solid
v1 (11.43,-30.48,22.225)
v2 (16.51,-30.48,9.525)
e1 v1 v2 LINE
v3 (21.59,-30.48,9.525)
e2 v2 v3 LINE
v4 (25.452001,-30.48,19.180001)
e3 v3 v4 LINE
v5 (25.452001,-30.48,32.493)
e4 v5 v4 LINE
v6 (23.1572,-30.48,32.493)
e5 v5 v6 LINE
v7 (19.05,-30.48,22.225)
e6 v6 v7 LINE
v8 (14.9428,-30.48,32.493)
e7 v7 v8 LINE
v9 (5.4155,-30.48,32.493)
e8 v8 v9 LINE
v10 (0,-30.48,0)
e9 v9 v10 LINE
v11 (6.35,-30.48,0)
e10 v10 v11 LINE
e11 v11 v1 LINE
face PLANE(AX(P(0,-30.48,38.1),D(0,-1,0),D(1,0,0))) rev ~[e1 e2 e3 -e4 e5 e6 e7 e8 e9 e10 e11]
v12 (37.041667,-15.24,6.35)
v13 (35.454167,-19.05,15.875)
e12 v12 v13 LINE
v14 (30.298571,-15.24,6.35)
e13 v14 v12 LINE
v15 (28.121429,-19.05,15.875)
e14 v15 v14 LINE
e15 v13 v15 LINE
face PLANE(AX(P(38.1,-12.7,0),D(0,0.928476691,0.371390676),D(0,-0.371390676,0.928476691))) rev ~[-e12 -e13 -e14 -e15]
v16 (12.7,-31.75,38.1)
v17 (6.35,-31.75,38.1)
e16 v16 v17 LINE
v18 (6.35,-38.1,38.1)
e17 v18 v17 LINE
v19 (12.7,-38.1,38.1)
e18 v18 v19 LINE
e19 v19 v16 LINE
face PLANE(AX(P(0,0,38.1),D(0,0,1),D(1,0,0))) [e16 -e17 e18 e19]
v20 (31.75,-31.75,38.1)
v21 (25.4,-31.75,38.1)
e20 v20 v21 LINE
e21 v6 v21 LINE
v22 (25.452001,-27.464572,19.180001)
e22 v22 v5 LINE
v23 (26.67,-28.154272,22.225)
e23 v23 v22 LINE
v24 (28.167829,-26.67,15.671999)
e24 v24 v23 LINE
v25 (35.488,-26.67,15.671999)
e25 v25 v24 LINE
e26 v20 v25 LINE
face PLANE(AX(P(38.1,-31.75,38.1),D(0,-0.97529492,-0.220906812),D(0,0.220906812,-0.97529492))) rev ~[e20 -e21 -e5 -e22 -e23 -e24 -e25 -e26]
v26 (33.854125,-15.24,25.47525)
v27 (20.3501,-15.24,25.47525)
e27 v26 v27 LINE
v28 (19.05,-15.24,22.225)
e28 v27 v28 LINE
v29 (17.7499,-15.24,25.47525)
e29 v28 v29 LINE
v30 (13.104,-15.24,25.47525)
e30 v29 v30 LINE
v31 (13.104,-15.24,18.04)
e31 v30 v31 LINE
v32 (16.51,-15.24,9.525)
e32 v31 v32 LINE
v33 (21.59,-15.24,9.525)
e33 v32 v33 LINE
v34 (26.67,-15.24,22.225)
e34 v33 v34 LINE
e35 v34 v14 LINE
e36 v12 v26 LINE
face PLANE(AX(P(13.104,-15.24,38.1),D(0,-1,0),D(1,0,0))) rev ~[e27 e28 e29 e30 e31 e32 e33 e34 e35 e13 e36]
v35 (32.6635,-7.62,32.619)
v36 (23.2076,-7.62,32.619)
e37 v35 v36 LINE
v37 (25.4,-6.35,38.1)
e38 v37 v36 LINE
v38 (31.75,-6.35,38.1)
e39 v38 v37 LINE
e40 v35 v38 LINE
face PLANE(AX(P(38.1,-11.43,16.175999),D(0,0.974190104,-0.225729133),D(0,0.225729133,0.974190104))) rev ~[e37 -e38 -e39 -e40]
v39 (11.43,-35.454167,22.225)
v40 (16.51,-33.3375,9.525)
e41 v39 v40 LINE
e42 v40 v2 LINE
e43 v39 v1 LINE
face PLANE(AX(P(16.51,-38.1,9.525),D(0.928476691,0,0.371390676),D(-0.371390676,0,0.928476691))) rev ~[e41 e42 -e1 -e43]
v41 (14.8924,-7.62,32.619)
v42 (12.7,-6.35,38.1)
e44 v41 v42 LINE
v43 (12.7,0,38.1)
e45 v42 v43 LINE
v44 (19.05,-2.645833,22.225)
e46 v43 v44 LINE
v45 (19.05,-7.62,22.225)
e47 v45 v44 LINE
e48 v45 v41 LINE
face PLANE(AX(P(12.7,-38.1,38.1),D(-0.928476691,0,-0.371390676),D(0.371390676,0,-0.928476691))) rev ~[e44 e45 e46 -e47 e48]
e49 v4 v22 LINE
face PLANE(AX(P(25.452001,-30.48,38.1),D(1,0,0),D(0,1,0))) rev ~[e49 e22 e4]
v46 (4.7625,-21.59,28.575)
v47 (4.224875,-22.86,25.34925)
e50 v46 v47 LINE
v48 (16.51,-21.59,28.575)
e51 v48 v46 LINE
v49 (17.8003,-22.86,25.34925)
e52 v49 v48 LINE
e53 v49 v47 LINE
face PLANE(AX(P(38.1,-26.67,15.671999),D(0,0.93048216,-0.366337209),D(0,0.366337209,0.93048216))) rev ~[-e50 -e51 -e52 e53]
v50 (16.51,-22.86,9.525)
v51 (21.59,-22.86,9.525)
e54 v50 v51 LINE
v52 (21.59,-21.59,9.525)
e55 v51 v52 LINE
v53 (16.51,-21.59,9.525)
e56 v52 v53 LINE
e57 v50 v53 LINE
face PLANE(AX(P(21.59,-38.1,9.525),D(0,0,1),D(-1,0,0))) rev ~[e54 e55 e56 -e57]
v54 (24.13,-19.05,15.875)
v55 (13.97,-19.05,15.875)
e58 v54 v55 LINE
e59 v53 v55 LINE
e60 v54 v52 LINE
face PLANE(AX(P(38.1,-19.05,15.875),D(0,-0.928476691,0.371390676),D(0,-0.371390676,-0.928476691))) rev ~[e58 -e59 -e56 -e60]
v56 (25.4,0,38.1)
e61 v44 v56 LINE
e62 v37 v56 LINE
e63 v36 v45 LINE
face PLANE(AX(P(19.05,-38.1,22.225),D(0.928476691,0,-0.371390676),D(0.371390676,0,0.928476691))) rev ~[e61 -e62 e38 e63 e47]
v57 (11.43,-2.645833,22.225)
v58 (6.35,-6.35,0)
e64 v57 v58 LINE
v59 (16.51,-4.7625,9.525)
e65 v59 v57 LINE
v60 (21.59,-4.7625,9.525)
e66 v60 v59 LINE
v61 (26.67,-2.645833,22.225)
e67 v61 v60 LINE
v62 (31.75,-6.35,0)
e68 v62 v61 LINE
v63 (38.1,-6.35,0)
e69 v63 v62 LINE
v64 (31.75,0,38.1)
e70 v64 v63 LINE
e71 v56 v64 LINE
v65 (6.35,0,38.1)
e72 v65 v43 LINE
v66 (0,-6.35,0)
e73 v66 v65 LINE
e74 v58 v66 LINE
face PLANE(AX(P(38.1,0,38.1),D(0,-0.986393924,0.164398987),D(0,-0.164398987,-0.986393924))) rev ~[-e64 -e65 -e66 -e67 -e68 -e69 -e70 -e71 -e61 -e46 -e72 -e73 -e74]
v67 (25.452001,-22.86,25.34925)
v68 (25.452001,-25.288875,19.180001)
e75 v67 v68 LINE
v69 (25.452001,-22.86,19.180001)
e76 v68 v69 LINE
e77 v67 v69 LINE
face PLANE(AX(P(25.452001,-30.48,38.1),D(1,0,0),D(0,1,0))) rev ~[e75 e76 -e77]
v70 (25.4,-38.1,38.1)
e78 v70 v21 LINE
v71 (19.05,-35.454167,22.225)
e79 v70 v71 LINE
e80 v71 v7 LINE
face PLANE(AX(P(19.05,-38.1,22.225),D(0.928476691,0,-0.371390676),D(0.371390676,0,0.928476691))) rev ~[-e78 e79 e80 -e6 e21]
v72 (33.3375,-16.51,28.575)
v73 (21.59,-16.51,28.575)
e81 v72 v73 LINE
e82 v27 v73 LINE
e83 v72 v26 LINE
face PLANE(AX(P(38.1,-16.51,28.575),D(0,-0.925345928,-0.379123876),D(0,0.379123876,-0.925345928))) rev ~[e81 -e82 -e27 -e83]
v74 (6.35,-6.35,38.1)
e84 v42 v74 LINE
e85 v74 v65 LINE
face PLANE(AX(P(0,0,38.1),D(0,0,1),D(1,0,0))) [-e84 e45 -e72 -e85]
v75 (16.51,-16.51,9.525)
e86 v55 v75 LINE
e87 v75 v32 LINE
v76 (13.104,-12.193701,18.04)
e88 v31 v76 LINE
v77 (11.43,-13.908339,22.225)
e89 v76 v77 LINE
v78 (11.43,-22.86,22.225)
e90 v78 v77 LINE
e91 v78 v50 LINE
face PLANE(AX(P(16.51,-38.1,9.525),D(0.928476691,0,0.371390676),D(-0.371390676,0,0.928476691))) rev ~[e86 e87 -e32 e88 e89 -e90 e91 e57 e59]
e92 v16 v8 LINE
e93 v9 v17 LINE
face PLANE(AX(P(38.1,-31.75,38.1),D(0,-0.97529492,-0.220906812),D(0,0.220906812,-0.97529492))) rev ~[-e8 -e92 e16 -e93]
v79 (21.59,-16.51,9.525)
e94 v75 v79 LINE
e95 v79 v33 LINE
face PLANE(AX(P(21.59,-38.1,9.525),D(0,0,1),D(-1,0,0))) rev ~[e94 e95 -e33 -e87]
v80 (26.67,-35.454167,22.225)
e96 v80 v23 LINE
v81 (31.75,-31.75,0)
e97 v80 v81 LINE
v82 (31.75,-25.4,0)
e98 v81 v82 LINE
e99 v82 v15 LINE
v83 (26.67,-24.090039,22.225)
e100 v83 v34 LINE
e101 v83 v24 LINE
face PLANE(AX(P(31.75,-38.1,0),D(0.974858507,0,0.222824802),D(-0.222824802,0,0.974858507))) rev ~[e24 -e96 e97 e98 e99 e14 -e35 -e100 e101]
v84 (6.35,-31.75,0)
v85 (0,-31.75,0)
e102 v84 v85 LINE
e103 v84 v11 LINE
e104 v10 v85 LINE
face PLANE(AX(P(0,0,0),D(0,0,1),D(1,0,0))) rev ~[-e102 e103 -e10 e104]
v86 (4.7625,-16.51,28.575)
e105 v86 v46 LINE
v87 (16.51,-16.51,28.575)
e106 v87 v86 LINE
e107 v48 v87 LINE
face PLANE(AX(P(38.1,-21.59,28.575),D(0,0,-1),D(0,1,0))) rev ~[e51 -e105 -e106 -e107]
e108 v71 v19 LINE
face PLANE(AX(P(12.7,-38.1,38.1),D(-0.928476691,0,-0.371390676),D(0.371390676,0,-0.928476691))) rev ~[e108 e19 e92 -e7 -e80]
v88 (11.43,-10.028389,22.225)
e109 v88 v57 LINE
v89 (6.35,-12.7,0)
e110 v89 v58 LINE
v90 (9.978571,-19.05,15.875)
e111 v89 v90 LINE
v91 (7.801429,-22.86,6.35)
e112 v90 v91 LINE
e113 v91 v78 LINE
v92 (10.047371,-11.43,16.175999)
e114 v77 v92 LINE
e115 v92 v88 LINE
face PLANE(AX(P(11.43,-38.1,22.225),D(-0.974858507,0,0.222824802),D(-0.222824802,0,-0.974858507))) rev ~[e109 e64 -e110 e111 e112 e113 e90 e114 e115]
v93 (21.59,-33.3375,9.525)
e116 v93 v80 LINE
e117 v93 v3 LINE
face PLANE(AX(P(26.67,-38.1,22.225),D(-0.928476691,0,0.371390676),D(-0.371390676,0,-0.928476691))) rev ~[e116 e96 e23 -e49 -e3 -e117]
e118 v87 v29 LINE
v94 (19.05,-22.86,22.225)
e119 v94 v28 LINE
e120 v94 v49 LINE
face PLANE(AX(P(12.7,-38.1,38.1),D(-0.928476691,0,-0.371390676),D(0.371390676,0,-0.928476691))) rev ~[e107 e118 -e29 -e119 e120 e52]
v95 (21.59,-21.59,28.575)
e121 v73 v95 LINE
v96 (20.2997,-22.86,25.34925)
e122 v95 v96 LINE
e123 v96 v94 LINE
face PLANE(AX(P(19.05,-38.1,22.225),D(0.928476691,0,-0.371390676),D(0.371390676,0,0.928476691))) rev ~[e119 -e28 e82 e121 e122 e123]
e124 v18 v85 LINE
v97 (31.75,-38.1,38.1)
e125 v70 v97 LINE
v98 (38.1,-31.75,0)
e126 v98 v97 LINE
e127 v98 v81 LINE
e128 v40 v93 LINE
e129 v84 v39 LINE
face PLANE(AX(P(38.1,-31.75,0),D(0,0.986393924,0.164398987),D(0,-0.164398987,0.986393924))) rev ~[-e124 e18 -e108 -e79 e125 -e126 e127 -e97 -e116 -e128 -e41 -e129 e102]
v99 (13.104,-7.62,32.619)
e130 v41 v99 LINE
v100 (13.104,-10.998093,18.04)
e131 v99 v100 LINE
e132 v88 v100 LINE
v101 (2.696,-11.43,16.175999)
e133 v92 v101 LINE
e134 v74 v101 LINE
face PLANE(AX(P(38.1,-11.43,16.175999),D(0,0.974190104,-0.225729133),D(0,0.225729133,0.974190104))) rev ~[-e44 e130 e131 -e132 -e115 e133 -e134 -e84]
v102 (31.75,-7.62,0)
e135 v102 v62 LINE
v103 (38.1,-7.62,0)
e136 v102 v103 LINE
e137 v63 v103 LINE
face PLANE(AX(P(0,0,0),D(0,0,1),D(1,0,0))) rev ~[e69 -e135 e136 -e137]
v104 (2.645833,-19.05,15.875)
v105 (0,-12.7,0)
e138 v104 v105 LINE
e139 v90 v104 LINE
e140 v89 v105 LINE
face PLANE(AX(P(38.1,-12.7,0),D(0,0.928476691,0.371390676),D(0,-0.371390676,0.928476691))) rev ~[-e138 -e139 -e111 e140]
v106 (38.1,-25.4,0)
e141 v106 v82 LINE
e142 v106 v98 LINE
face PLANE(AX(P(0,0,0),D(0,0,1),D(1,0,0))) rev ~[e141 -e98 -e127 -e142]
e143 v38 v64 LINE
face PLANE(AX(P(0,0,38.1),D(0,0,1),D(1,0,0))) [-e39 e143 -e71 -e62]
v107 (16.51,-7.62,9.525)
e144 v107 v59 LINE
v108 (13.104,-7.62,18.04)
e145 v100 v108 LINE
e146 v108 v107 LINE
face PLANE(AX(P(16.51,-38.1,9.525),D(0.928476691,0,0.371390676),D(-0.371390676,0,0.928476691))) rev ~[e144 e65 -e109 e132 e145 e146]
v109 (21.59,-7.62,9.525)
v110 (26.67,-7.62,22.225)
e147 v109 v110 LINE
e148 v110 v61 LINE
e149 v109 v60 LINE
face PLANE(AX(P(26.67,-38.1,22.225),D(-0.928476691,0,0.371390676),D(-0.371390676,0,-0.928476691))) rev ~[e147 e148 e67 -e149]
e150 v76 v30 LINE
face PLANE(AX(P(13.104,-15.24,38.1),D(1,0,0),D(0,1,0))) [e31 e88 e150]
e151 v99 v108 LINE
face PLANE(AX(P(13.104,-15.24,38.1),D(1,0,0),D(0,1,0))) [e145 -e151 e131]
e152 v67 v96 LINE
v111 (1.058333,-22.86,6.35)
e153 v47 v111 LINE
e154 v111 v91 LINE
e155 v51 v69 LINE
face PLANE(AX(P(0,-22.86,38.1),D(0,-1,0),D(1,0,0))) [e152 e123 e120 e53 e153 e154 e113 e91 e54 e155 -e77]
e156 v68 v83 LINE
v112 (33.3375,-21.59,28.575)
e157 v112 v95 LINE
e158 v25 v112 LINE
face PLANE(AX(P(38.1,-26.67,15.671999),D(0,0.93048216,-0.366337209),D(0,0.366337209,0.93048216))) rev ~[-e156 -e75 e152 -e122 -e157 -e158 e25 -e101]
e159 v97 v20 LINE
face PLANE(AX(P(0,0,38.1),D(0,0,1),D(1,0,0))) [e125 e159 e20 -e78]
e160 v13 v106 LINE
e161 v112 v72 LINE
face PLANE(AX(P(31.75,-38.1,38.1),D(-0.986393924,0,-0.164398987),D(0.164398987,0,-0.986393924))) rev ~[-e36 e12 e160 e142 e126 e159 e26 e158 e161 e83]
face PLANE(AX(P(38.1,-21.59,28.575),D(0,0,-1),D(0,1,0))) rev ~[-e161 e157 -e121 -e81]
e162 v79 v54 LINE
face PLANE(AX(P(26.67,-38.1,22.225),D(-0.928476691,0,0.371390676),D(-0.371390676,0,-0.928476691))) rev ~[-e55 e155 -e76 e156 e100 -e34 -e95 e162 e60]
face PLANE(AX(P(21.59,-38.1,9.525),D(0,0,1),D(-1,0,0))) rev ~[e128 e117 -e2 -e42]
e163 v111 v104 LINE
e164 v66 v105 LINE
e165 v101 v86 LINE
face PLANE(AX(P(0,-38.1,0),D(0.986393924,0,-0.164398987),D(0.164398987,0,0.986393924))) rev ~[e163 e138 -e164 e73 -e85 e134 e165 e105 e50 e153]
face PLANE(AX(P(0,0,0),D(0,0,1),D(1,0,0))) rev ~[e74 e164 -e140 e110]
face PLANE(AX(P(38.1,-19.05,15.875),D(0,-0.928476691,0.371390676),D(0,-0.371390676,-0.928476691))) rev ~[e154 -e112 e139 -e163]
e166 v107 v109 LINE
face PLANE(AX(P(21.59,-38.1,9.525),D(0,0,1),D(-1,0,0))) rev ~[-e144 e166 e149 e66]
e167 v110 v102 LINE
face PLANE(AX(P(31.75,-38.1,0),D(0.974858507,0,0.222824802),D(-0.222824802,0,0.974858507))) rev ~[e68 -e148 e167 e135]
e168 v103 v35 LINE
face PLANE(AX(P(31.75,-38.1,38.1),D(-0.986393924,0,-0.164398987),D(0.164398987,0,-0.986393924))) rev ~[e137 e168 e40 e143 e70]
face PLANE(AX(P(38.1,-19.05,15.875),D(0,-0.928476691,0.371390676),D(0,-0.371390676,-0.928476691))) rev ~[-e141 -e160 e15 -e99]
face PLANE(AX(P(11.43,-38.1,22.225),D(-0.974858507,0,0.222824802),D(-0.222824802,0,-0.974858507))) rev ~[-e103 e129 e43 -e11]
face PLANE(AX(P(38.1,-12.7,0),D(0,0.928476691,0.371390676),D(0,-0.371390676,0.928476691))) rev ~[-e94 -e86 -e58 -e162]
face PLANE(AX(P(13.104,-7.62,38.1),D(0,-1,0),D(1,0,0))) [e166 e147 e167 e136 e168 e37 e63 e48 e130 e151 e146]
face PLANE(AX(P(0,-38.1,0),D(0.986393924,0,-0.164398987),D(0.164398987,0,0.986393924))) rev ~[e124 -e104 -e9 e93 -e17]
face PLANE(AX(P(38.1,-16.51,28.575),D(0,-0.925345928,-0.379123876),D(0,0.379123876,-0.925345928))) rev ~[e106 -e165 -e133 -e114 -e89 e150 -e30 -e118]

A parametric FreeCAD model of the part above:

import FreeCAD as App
import Part
import Sketcher

V = App.Vector
Q = App.Units.Quantity


def add_polygon(sketch, points):
    """Adds a closed chain of lines whose ends are joined by coincident constraints."""
    first, n = sketch.GeometryCount, len(points)
    for a, b in zip(points, points[1:] + points[:1]):
        sketch.addGeometry(Part.LineSegment(App.Vector(*a, 0), App.Vector(*b, 0)), False)
    for i in range(n):
        sketch.addConstraint(Sketcher.Constraint("Coincident", first + i, 2, first + (i + 1) % n, 1))

doc = App.newDocument("Part")
body = doc.addObject("PartDesign::Body", "Body")

# Sketch on XZ plane
sketch1 = body.newObject("Sketcher::SketchObject", "Sketch")
sketch1.AttachmentSupport = (doc.getObject("XZ_Plane"), [""])
sketch1.MapMode = "FlatFace"
add_polygon(sketch1, [(0, 38.1), (0, 0), (38.1, 0), (38.1, 38.1)])  # lines 0-3
sketch1.addConstraint(Sketcher.Constraint("Vertical", 0))
sketch1.addConstraint(Sketcher.Constraint("Horizontal", 1))
sketch1.addConstraint(Sketcher.Constraint("Vertical", 2))
sketch1.addConstraint(Sketcher.Constraint("Horizontal", 3))
sketch1.addConstraint(Sketcher.Constraint("Coincident", 0, 2, -1, 1))
sketch1.addConstraint(Sketcher.Constraint("Equal", 3, 0))
sketch1.addConstraint(Sketcher.Constraint("DistanceX", 1, 1, 1, 2, Q("1.5 in")))
pad1 = body.newObject("PartDesign::Pad", "Pad")
pad1.Profile = sketch1
pad1.Length = Q("1.5 in")

# Sketch on YZ plane
sketch2 = body.newObject("Sketcher::SketchObject", "Sketch001")
sketch2.AttachmentSupport = (doc.getObject("YZ_Plane"), [""])
sketch2.MapMode = "FlatFace"
sketch2.AttachmentOffset = App.Placement(V(0, 0, 1.5 * 25.4), App.Rotation())
add_polygon(sketch2, [(-6.35, 38.1), (-31.75, 38.1), (-26.67, 15.671999), (-21.59, 28.575), (-16.51, 28.575), (-11.43, 16.175999)])  # lines 0-5
add_polygon(sketch2, [(-19.05, 15.875), (-25.4, 0), (-12.7, 0)])  # lines 6-8
add_polygon(sketch2, [(-31.75, 0), (-38.1, 38.1), (-38.1, 0)])  # lines 9-11
add_polygon(sketch2, [(0, 0), (0, 38.1), (-6.35, 0)])  # lines 12-14
sketch2.addConstraint(Sketcher.Constraint("Horizontal", 0))
sketch2.addConstraint(Sketcher.Constraint("Horizontal", 3))
sketch2.addConstraint(Sketcher.Constraint("Horizontal", 7))
sketch2.addConstraint(Sketcher.Constraint("Vertical", 10))
sketch2.addConstraint(Sketcher.Constraint("Horizontal", 11))
sketch2.addConstraint(Sketcher.Constraint("Vertical", 12))
sketch2.addConstraint(Sketcher.Constraint("Horizontal", 14))
sketch2.addConstraint(Sketcher.Constraint("Coincident", 14, 2, -1, 1))
sketch2.addConstraint(Sketcher.Constraint("PointOnObject", 6, 2, -1))
sketch2.addConstraint(Sketcher.Constraint("PointOnObject", 10, 2, -1))
sketch2.addConstraint(Sketcher.Constraint("Horizontal", 5, 2, 9, 2))
sketch2.addConstraint(Sketcher.Constraint("Horizontal", 9, 2, 12, 2))
sketch2.addConstraint(Sketcher.Constraint("Vertical", 0, 2, 11, 2))
sketch2.addConstraint(Sketcher.Constraint("Vertical", 5, 2, 13, 2))
sketch2.addConstraint(Sketcher.Constraint("Equal", 11, 14))
sketch2.addConstraint(Sketcher.Constraint("Equal", 6, 8))
sketch2.addConstraint(Sketcher.Constraint("DistanceX", 0, 2, 0, 1, Q("1 in")))
sketch2.addConstraint(Sketcher.Constraint("DistanceX", 3, 1, 3, 2, Q("0.2 in")))
sketch2.addConstraint(Sketcher.Constraint("DistanceX", 7, 1, 7, 2, Q("0.5 in")))
sketch2.addConstraint(Sketcher.Constraint("DistanceY", 10, 2, 10, 1, Q("1.5 in")))
sketch2.addConstraint(Sketcher.Constraint("DistanceX", 6, 2, -1, 1, Q("1 in")))
sketch2.addConstraint(Sketcher.Constraint("DistanceX", 10, 2, 7, 2, Q("1 in")))
sketch2.addConstraint(Sketcher.Constraint("DistanceX", 0, 2, 1, 2, Q("0.2 in")))
sketch2.addConstraint(Sketcher.Constraint("DistanceX", 1, 2, 2, 2, Q("0.2 in")))
sketch2.addConstraint(Sketcher.Constraint("DistanceX", 3, 2, 4, 2, Q("0.2 in")))
sketch2.addConstraint(Sketcher.Constraint("DistanceY", 8, 2, 2, 2, Q("0.5 in")))
sketch2.addConstraint(Sketcher.Constraint("DistanceY", -1, 1, 2, 2, Q("1.125 in")))
sketch2.addConstraint(Sketcher.Constraint("DistanceY", -1, 1, 1, 2, Q("15.671999 mm")))
sketch2.addConstraint(Sketcher.Constraint("DistanceY", -1, 1, 4, 2, Q("16.175999 mm")))
pocket1 = body.newObject("PartDesign::Pocket", "Pocket")
pocket1.Profile = sketch2
pocket1.Length = Q("1.5 in")

# Sketch on XZ plane
sketch3 = body.newObject("Sketcher::SketchObject", "Sketch002")
sketch3.AttachmentSupport = (doc.getObject("XZ_Plane"), [""])
sketch3.MapMode = "FlatFace"
sketch3.AttachmentOffset = App.Placement(V(0, 0, 1.5 * 25.4), App.Rotation())
add_polygon(sketch3, [(25.4, 38.1), (12.7, 38.1), (19.05, 22.225)])  # lines 0-2
add_polygon(sketch3, [(0, 38.1), (0, 0), (6.35, 38.1)])  # lines 3-5
add_polygon(sketch3, [(11.43, 22.225), (6.35, 0), (31.75, 0), (26.67, 22.225), (21.59, 9.525), (16.51, 9.525)])  # lines 6-11
add_polygon(sketch3, [(31.75, 38.1), (38.1, 0), (38.1, 38.1)])  # lines 12-14
sketch3.addConstraint(Sketcher.Constraint("Horizontal", 0))
sketch3.addConstraint(Sketcher.Constraint("Vertical", 3))
sketch3.addConstraint(Sketcher.Constraint("Horizontal", 5))
sketch3.addConstraint(Sketcher.Constraint("Horizontal", 7))
sketch3.addConstraint(Sketcher.Constraint("Horizontal", 10))
sketch3.addConstraint(Sketcher.Constraint("Vertical", 13))
sketch3.addConstraint(Sketcher.Constraint("Horizontal", 14))
sketch3.addConstraint(Sketcher.Constraint("Coincident", 3, 2, -1, 1))
sketch3.addConstraint(Sketcher.Constraint("PointOnObject", 6, 2, -1))
sketch3.addConstraint(Sketcher.Constraint("PointOnObject", 12, 2, -1))
sketch3.addConstraint(Sketcher.Constraint("Parallel", 2, 9))
sketch3.addConstraint(Sketcher.Constraint("Parallel", 1, 11))
sketch3.addConstraint(Sketcher.Constraint("Horizontal", 2, 2, 4, 2))
sketch3.addConstraint(Sketcher.Constraint("Horizontal", 1, 2, 8, 2))
sketch3.addConstraint(Sketcher.Constraint("Horizontal", 8, 2, 11, 2))
sketch3.addConstraint(Sketcher.Constraint("Horizontal", 5, 2, 13, 2))
sketch3.addConstraint(Sketcher.Constraint("Vertical", 4, 2, 6, 2))
sketch3.addConstraint(Sketcher.Constraint("Vertical", 7, 2, 14, 2))
sketch3.addConstraint(Sketcher.Constraint("Equal", 5, 14))
sketch3.addConstraint(Sketcher.Constraint("Equal", 1, 2))
sketch3.addConstraint(Sketcher.Constraint("Equal", 6, 8))
sketch3.addConstraint(Sketcher.Constraint("DistanceX", 7, 1, 7, 2, Q("1 in")))
sketch3.addConstraint(Sketcher.Constraint("DistanceX", 0, 2, 0, 1, Q("0.5 in")))
sketch3.addConstraint(Sketcher.Constraint("DistanceX", 10, 2, 10, 1, Q("0.2 in")))
sketch3.addConstraint(Sketcher.Constraint("DistanceY", 3, 2, 3, 1, Q("1.5 in")))
sketch3.addConstraint(Sketcher.Constraint("DistanceX", -1, 1, 2, 2, Q("1 in")))
sketch3.addConstraint(Sketcher.Constraint("DistanceX", 0, 2, 13, 2, Q("1 in")))
sketch3.addConstraint(Sketcher.Constraint("DistanceX", 1, 2, 8, 2, Q("0.3 in")))
sketch3.addConstraint(Sketcher.Constraint("DistanceY", 9, 2, 1, 2, Q("0.5 in")))
pocket2 = body.newObject("PartDesign::Pocket", "Pocket001")
pocket2.Profile = sketch3
pocket2.Length = Q("1.5 in")

# Sketch on XY plane
sketch4 = body.newObject("Sketcher::SketchObject", "Sketch003")
sketch4.AttachmentSupport = (doc.getObject("XY_Plane"), [""])
sketch4.MapMode = "FlatFace"
sketch4.AttachmentOffset = App.Placement(V(0, 0, 1.5 * 25.4), App.Rotation())
add_polygon(sketch4, [(13.104, -7.62), (13.104, -15.24), (38.1, -15.24), (38.1, -7.62)])  # lines 0-3
add_polygon(sketch4, [(0, -22.86), (0, -30.48), (25.452001, -30.48), (25.452001, -22.86)])  # lines 4-7
sketch4.addConstraint(Sketcher.Constraint("Vertical", 0))
sketch4.addConstraint(Sketcher.Constraint("Horizontal", 1))
sketch4.addConstraint(Sketcher.Constraint("Vertical", 2))
sketch4.addConstraint(Sketcher.Constraint("Horizontal", 3))
sketch4.addConstraint(Sketcher.Constraint("Vertical", 4))
sketch4.addConstraint(Sketcher.Constraint("Horizontal", 5))
sketch4.addConstraint(Sketcher.Constraint("Vertical", 6))
sketch4.addConstraint(Sketcher.Constraint("Horizontal", 7))
sketch4.addConstraint(Sketcher.Constraint("PointOnObject", 4, 2, -2))
sketch4.addConstraint(Sketcher.Constraint("Equal", 2, 4))
sketch4.addConstraint(Sketcher.Constraint("DistanceY", 0, 2, 0, 1, Q("0.3 in")))
sketch4.addConstraint(Sketcher.Constraint("DistanceY", 0, 2, -1, 1, Q("0.6 in")))
sketch4.addConstraint(Sketcher.Constraint("DistanceX", -1, 1, 1, 2, Q("1.5 in")))
sketch4.addConstraint(Sketcher.Constraint("DistanceY", 4, 2, -1, 1, Q("1.2 in")))
sketch4.addConstraint(Sketcher.Constraint("DistanceX", 1, 1, 1, 2, Q("24.996 mm")))
sketch4.addConstraint(Sketcher.Constraint("DistanceX", 5, 1, 5, 2, Q("25.452001 mm")))
pocket3 = body.newObject("PartDesign::Pocket", "Pocket002")
pocket3.Profile = sketch4
pocket3.Length = Q("1.5 in")

doc.recompute()
